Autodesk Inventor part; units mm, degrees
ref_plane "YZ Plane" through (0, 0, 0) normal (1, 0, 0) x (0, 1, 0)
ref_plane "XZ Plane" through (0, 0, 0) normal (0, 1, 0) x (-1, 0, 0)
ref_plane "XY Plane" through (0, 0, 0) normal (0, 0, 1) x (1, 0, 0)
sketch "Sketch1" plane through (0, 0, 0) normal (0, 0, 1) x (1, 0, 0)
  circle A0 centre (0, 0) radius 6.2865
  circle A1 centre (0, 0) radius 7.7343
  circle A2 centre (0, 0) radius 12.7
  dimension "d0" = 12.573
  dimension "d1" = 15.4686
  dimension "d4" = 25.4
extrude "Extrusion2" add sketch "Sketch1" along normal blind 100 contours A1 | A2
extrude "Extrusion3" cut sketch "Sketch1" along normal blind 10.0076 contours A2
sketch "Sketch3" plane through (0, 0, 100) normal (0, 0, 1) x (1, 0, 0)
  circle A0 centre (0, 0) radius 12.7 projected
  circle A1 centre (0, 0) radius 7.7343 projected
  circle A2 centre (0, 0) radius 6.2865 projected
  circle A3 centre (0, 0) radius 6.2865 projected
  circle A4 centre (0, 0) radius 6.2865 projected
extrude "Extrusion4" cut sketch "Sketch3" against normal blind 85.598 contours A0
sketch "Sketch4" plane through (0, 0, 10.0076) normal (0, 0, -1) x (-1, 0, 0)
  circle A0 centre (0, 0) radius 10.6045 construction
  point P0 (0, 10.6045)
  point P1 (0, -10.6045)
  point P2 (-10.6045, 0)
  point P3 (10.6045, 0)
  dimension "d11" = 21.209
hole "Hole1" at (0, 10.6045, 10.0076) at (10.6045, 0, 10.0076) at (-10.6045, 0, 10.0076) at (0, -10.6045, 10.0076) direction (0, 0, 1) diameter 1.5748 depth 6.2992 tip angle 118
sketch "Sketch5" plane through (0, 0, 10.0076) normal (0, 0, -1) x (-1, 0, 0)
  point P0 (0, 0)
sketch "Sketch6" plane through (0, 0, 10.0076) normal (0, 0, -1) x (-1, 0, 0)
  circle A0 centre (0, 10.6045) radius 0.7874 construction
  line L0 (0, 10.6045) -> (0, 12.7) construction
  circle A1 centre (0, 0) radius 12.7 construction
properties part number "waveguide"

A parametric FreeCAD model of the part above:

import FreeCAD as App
import Part
import Sketcher
from FreeCAD import Vector
Q = App.Units.Quantity

doc = App.newDocument("Part")
body = doc.addObject("PartDesign::Body", "Body")

# Sketch on XY plane
sketch1 = doc.addObject("Sketcher::SketchObject", "Sketch")
body.addObject(sketch1)
sketch1.AttachmentSupport = (doc.XY_Plane, [""])
sketch1.MapMode = "FlatFace"
sketch1.addGeometry(Part.Circle(Vector(0, 0, 0), Vector(0, 0, 1), 12.7), False)
sketch1.addGeometry(Part.Circle(Vector(0, 0, 0), Vector(0, 0, 1), 6.2865), False)
sketch1.addConstraint(Sketcher.Constraint("Coincident", 0, 3, -1, 1))
sketch1.addConstraint(Sketcher.Constraint("Coincident", 1, 3, -1, 1))
sketch1.addConstraint(Sketcher.Constraint("Diameter", 0, Q("1 in")))
sketch1.addConstraint(Sketcher.Constraint("Diameter", 1, Q("0.495 in")))
pad1 = doc.addObject("PartDesign::Pad", "Pad")
body.addObject(pad1)
pad1.Profile = sketch1
pad1.Length = Q("3.9370079 in")

# Sketch on XY plane
sketch2 = doc.addObject("Sketcher::SketchObject", "Sketch001")
body.addObject(sketch2)
sketch2.AttachmentSupport = (doc.XY_Plane, [""])
sketch2.MapMode = "FlatFace"
sketch2.addGeometry(Part.Circle(Vector(0, 0, 0), Vector(0, 0, 1), 12.7), False)
sketch2.addGeometry(Part.Circle(Vector(0, 0, 0), Vector(0, 0, 1), 7.7343), False)
sketch2.addConstraint(Sketcher.Constraint("Coincident", 0, 3, -1, 1))
sketch2.addConstraint(Sketcher.Constraint("Coincident", 1, 3, -1, 1))
sketch2.addConstraint(Sketcher.Constraint("Diameter", 0, Q("1 in")))
sketch2.addConstraint(Sketcher.Constraint("Diameter", 1, Q("0.609 in")))
pocket1 = doc.addObject("PartDesign::Pocket", "Pocket")
body.addObject(pocket1)
pocket1.Profile = sketch2
pocket1.Length = Q("0.394 in")
pocket1.Reversed = True

# Sketch on XY plane
sketch3 = doc.addObject("Sketcher::SketchObject", "Sketch002")
body.addObject(sketch3)
sketch3.AttachmentSupport = (doc.XY_Plane, [""])
sketch3.MapMode = "FlatFace"
sketch3.AttachmentOffset = App.Placement(Vector(0, 0, 3.9370079 * 25.4), App.Rotation())
sketch3.addGeometry(Part.Circle(Vector(0, 0, 0), Vector(0, 0, 1), 12.7), False)
sketch3.addGeometry(Part.Circle(Vector(0, 0, 0), Vector(0, 0, 1), 7.7343), False)
sketch3.addConstraint(Sketcher.Constraint("Coincident", 0, 3, -1, 1))
sketch3.addConstraint(Sketcher.Constraint("Coincident", 1, 3, -1, 1))
sketch3.addConstraint(Sketcher.Constraint("Diameter", 0, Q("1 in")))
sketch3.addConstraint(Sketcher.Constraint("Diameter", 1, Q("0.609 in")))
pocket2 = doc.addObject("PartDesign::Pocket", "Pocket001")
body.addObject(pocket2)
pocket2.Profile = sketch3
pocket2.Length = Q("3.37 in")

# Sketch on XY plane
sketch4 = doc.addObject("Sketcher::SketchObject", "Sketch003")
body.addObject(sketch4)
sketch4.AttachmentSupport = (doc.XY_Plane, [""])
sketch4.MapMode = "FlatFace"
sketch4.AttachmentOffset = App.Placement(Vector(0, 0, 0.394 * 25.4), App.Rotation())
sketch4.addGeometry(Part.Circle(Vector(0, 10.6045, 0), Vector(0, 0, 1), 0.7874), False)
sketch4.addGeometry(Part.Circle(Vector(10.6045, 0, 0), Vector(0, 0, 1), 0.7874), False)
sketch4.addGeometry(Part.Circle(Vector(-10.6045, 0, 0), Vector(0, 0, 1), 0.7874), False)
sketch4.addGeometry(Part.Circle(Vector(0, -10.6045, 0), Vector(0, 0, 1), 0.7874), False)
sketch4.addConstraint(Sketcher.Constraint("Equal", 0, 1))
sketch4.addConstraint(Sketcher.Constraint("Equal", 1, 2))
sketch4.addConstraint(Sketcher.Constraint("Equal", 2, 3))
sketch4.addConstraint(Sketcher.Constraint("Symmetric", 1, 3, 2, 3, -1, 1))
sketch4.addConstraint(Sketcher.Constraint("Symmetric", 0, 3, 3, 3, -1, 1))
sketch4.addConstraint(Sketcher.Constraint("PointOnObject", 0, 3, -2))
sketch4.addConstraint(Sketcher.Constraint("PointOnObject", 1, 3, -1))
sketch4.addConstraint(Sketcher.Constraint("Diameter", 0, Q("0.062 in")))
sketch4.addConstraint(Sketcher.Constraint("DistanceX", 2, 3, 1, 3, Q("0.835 in")))
sketch4.addConstraint(Sketcher.Constraint("DistanceY", 3, 3, 0, 3, Q("0.835 in")))
doc.recompute()
hole = doc.addObject("PartDesign::Hole", "Hole")
body.addObject(hole)
hole.Profile = sketch4
hole.ThreadType = "None"
hole.Diameter = Q("0.062 in")
hole.DepthType = "Dimension"
hole.Depth = Q("0.248 in")
hole.DrillPoint = "Angled"
hole.DrillPointAngle = 118
hole.Reversed = True

doc.recompute()
